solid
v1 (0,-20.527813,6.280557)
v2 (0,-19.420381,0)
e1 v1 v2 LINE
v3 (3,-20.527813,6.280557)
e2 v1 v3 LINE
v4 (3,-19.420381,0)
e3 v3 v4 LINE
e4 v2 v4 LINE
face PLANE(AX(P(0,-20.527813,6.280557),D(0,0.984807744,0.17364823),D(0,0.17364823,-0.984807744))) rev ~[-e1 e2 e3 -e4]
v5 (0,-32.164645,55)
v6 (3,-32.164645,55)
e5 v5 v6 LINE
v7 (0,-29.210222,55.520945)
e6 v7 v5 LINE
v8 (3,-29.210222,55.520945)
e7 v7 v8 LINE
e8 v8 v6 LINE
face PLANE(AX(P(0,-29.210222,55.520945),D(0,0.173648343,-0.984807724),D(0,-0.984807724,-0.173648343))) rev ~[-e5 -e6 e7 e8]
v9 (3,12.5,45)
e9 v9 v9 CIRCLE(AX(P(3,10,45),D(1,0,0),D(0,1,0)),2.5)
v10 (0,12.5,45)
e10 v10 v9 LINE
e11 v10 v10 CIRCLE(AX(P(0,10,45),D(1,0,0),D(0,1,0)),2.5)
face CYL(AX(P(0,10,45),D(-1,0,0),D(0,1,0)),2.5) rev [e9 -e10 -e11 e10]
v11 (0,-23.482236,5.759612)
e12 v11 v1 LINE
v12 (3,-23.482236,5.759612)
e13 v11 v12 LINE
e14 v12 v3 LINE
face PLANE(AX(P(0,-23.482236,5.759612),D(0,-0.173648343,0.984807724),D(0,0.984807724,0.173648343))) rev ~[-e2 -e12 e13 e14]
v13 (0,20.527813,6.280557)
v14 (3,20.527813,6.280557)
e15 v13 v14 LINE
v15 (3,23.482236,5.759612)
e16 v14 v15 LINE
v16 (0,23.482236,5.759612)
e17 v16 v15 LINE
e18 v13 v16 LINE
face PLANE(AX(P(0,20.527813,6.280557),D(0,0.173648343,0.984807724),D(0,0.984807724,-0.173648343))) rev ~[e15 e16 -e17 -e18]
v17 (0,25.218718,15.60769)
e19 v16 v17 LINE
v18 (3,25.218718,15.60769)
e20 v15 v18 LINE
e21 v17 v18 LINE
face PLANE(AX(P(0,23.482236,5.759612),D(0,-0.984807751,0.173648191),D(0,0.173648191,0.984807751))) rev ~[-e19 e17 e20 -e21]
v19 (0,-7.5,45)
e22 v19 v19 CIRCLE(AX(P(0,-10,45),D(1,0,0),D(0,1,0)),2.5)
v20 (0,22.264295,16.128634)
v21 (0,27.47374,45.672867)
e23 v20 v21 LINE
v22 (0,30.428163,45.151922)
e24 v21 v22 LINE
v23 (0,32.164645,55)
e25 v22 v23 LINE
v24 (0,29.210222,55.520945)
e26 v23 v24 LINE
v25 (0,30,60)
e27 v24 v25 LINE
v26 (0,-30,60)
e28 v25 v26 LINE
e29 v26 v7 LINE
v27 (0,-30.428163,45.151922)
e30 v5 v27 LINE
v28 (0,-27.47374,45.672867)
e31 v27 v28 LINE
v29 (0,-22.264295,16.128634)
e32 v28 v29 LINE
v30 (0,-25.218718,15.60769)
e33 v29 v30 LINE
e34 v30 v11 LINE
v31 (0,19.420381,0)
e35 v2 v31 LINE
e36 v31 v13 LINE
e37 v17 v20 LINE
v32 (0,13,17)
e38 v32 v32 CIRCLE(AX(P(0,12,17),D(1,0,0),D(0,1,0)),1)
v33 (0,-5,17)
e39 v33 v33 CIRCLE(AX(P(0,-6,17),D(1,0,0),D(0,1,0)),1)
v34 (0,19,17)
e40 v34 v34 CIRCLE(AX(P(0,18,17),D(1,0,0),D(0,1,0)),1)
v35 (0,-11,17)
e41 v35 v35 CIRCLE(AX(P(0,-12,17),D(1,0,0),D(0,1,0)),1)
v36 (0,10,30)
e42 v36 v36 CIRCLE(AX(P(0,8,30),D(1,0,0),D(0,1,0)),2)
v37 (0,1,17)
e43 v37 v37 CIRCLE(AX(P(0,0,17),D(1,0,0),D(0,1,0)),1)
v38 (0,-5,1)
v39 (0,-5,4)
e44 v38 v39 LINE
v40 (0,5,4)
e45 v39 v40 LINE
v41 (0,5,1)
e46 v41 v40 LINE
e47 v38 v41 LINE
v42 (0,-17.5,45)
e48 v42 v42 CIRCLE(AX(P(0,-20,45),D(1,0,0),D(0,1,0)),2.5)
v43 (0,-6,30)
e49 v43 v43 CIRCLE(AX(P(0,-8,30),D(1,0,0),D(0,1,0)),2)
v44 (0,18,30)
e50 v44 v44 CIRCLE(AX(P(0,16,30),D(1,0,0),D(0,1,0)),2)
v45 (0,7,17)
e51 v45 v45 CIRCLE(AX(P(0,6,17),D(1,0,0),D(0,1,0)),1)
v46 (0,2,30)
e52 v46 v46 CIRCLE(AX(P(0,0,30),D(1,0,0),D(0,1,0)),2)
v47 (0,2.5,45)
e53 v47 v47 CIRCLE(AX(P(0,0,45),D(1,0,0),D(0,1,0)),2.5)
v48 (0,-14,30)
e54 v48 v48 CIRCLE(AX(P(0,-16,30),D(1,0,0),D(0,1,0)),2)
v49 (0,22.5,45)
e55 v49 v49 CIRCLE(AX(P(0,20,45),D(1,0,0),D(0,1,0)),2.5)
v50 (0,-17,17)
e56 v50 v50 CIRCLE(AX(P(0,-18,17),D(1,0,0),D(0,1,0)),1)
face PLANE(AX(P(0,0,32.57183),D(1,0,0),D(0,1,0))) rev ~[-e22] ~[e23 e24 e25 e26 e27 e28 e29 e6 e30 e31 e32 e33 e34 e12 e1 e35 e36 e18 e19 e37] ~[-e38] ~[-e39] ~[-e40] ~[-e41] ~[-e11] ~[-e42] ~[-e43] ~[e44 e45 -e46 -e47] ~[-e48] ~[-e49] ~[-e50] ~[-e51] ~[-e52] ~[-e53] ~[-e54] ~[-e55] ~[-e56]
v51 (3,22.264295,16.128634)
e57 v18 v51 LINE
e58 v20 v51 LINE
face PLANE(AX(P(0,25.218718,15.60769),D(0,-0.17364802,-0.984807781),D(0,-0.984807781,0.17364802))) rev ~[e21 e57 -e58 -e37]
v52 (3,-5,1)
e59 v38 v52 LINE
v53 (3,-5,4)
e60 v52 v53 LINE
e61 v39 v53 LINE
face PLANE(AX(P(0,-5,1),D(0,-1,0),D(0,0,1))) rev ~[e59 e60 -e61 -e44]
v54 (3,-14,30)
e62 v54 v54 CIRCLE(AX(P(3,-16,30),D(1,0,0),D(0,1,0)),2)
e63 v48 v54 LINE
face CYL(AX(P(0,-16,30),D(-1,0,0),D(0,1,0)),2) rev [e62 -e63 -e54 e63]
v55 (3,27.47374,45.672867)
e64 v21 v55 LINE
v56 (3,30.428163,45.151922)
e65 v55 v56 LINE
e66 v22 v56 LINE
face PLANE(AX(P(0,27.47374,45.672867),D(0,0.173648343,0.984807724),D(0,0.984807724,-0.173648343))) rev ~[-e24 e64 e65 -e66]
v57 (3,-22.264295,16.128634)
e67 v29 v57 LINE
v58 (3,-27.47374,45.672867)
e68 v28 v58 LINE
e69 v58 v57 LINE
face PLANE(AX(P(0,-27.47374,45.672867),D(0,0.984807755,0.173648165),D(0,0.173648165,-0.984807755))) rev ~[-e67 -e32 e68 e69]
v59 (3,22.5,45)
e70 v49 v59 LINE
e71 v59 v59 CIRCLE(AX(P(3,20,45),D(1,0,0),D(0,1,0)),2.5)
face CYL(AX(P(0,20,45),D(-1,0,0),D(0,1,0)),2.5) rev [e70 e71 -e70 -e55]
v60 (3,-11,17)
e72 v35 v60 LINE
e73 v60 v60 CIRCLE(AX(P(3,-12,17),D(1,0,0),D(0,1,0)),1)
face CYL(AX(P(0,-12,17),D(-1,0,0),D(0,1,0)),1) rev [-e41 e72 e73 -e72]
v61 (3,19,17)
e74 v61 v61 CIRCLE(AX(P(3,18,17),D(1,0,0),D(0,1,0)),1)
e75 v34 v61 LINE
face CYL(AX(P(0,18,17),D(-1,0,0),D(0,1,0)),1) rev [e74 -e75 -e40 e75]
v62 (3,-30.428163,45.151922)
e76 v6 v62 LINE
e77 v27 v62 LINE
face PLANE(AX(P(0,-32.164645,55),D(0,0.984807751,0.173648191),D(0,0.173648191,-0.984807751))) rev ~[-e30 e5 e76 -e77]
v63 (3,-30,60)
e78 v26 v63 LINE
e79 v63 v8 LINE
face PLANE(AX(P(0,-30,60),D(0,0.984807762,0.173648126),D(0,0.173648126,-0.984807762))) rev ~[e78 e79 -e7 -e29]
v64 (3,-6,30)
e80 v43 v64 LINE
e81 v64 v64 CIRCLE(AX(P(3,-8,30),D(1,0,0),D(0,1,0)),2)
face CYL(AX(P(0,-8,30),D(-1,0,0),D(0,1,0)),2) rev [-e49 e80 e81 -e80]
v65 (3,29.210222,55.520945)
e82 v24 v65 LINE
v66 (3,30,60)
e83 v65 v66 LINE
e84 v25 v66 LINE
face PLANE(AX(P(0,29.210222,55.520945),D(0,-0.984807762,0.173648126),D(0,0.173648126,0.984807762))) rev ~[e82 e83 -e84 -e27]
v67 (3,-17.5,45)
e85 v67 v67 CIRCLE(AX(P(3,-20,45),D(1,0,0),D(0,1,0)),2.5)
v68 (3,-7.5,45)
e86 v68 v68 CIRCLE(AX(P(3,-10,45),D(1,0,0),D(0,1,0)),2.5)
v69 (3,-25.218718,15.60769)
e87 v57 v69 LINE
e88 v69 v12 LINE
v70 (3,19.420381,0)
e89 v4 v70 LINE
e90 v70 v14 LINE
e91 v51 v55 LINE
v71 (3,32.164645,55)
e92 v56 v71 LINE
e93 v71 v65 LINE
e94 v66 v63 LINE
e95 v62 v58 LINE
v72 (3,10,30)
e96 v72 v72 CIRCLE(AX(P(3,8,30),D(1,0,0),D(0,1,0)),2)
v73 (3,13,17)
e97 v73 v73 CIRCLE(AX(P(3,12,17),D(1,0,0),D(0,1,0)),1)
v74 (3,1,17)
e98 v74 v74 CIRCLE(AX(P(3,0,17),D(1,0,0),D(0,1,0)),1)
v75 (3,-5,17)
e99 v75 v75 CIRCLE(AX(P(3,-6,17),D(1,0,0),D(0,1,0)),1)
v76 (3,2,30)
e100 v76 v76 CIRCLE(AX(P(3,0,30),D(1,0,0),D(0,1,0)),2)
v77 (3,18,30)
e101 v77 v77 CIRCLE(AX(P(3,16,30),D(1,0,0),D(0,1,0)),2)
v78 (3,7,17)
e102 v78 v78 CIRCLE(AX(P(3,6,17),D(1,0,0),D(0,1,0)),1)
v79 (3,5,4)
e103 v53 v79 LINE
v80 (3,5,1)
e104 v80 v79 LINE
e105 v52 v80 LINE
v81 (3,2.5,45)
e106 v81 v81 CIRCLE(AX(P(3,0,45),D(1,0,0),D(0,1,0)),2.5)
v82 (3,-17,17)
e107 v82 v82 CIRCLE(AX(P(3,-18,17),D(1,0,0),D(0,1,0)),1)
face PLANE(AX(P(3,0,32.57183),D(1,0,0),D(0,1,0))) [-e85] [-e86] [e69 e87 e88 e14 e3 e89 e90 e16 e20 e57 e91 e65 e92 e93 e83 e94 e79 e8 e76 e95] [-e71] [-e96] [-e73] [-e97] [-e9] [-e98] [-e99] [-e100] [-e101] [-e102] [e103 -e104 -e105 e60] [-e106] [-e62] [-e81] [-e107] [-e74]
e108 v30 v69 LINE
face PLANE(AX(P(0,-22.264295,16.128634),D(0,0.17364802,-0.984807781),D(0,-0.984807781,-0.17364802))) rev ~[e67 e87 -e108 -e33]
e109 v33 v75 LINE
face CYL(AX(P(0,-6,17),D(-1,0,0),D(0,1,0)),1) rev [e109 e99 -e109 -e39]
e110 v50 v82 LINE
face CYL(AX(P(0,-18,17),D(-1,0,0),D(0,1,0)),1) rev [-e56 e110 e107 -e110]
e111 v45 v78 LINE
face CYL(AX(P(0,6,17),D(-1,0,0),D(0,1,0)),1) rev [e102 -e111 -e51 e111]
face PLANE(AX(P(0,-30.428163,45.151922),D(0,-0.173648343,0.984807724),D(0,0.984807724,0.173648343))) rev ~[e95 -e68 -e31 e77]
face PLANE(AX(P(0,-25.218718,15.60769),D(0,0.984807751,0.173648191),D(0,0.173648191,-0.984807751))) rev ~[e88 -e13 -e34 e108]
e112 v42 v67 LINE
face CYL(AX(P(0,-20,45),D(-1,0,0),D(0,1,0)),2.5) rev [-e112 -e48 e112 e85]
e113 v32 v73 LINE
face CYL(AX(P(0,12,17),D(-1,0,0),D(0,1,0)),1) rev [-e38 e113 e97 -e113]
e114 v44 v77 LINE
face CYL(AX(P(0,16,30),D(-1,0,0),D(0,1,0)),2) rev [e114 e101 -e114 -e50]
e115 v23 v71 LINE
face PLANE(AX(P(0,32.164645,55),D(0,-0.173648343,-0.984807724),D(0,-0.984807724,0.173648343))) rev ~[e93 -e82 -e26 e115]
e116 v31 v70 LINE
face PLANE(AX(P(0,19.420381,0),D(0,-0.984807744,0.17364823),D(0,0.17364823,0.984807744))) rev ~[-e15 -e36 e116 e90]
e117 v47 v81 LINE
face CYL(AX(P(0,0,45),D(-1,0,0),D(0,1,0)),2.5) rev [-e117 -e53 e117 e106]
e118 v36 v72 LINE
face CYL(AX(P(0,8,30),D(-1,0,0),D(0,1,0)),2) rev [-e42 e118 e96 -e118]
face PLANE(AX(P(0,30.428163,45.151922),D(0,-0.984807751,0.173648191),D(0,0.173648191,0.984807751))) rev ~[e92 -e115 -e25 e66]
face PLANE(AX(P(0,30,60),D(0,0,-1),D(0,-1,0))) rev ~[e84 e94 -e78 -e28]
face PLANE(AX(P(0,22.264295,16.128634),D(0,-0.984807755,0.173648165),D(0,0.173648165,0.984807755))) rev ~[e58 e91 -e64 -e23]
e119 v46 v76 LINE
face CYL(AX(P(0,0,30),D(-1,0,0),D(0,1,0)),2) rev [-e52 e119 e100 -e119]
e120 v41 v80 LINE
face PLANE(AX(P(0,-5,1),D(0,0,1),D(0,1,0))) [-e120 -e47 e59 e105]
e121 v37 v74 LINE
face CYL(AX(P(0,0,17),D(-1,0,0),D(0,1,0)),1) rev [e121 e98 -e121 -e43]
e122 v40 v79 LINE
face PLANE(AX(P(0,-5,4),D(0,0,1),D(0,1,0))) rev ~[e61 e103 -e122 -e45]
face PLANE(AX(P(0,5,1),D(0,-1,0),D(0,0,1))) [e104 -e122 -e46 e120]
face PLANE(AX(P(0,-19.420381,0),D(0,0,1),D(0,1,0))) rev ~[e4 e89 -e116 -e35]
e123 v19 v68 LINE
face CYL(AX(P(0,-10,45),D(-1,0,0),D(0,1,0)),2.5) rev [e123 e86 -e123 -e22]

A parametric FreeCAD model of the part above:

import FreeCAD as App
import Part
import Sketcher
from FreeCAD import Vector
Q = App.Units.Quantity


def add_polygon(sketch, points):
    """Adds a closed chain of lines whose ends are joined by coincident constraints."""
    first, n = sketch.GeometryCount, len(points)
    for a, b in zip(points, points[1:] + points[:1]):
        sketch.addGeometry(Part.LineSegment(App.Vector(*a, 0), App.Vector(*b, 0)), False)
    for i in range(n):
        sketch.addConstraint(Sketcher.Constraint("Coincident", first + i, 2, first + (i + 1) % n, 1))

doc = App.newDocument("Part")
body = doc.addObject("PartDesign::Body", "Body")

sketch1 = doc.addObject("Sketcher::SketchObject", "Sketch")
body.addObject(sketch1)
sketch1.AttachmentSupport = (doc.YZ_Plane, [""])
sketch1.MapMode = "FlatFace"
add_polygon(sketch1, [(-20.527813, 6.280557), (-19.420381, 0), (19.420381, 0), (20.527813, 6.280557), (23.482236, 5.759612), (25.218718, 15.60769), (22.264295, 16.128634), (27.47374, 45.672867), (30.428163, 45.151922), (32.164645, 55), (29.210222, 55.520945), (30, 60), (-30, 60), (-29.210222, 55.520945), (-32.164645, 55), (-30.428163, 45.151922), (-27.47374, 45.672867), (-22.264295, 16.128634), (-25.218718, 15.60769), (-23.482236, 5.759612)])
sketch1.addGeometry(Part.Circle(Vector(-18, 17, 0), Vector(0, 0, 1), 1), False)
sketch1.addGeometry(Part.Circle(Vector(-12, 17, 0), Vector(0, 0, 1), 1), False)
sketch1.addGeometry(Part.Circle(Vector(-6, 17, 0), Vector(0, 0, 1), 1), False)
add_polygon(sketch1, [(5, 1), (-5, 1), (-5, 4), (5, 4)])
sketch1.addGeometry(Part.Circle(Vector(0, 17, 0), Vector(0, 0, 1), 1), False)
sketch1.addGeometry(Part.Circle(Vector(6, 17, 0), Vector(0, 0, 1), 1), False)
sketch1.addGeometry(Part.Circle(Vector(12, 17, 0), Vector(0, 0, 1), 1), False)
sketch1.addGeometry(Part.Circle(Vector(18, 17, 0), Vector(0, 0, 1), 1), False)
sketch1.addGeometry(Part.Circle(Vector(-16, 30, 0), Vector(0, 0, 1), 2), False)
sketch1.addGeometry(Part.Circle(Vector(-8, 30, 0), Vector(0, 0, 1), 2), False)
sketch1.addGeometry(Part.Circle(Vector(-20, 45, 0), Vector(0, 0, 1), 2.5), False)
sketch1.addGeometry(Part.Circle(Vector(-10, 45, 0), Vector(0, 0, 1), 2.5), False)
sketch1.addGeometry(Part.Circle(Vector(0, 30, 0), Vector(0, 0, 1), 2), False)
sketch1.addGeometry(Part.Circle(Vector(8, 30, 0), Vector(0, 0, 1), 2), False)
sketch1.addGeometry(Part.Circle(Vector(16, 30, 0), Vector(0, 0, 1), 2), False)
sketch1.addGeometry(Part.Circle(Vector(0, 45, 0), Vector(0, 0, 1), 2.5), False)
sketch1.addGeometry(Part.Circle(Vector(10, 45, 0), Vector(0, 0, 1), 2.5), False)
sketch1.addGeometry(Part.Circle(Vector(20, 45, 0), Vector(0, 0, 1), 2.5), False)
sketch1.addConstraint([
    Sketcher.Constraint("Horizontal", 1),
    Sketcher.Constraint("Horizontal", 11),
    Sketcher.Constraint("Horizontal", 23),
    Sketcher.Constraint("Vertical", 24),
    Sketcher.Constraint("Horizontal", 25),
    Sketcher.Constraint("Vertical", 26),
    Sketcher.Constraint("Equal", 20, 21),
    Sketcher.Constraint("Equal", 21, 22),
    Sketcher.Constraint("Equal", 22, 27),
    Sketcher.Constraint("Equal", 27, 28),
    Sketcher.Constraint("Equal", 28, 29),
    Sketcher.Constraint("Equal", 29, 30),
    Sketcher.Constraint("Equal", 31, 32),
    Sketcher.Constraint("Equal", 33, 34),
    Sketcher.Constraint("Equal", 32, 35),
    Sketcher.Constraint("Equal", 35, 36),
    Sketcher.Constraint("Equal", 36, 37),
    Sketcher.Constraint("Equal", 34, 38),
    Sketcher.Constraint("Equal", 38, 39),
    Sketcher.Constraint("Equal", 39, 40),
    Sketcher.Constraint("Symmetric", 0, 2, 1, 2, -1, 1),
    Sketcher.Constraint("Symmetric", 22, 3, 28, 3, -2),
    Sketcher.Constraint("Symmetric", 21, 3, 29, 3, -2),
    Sketcher.Constraint("Symmetric", 20, 3, 30, 3, -2),
    Sketcher.Constraint("Symmetric", 32, 3, 36, 3, -2),
    Sketcher.Constraint("Symmetric", 31, 3, 37, 3, -2),
    Sketcher.Constraint("Symmetric", 34, 3, 39, 3, -2),
    Sketcher.Constraint("Symmetric", 33, 3, 40, 3, -2),
    Sketcher.Constraint("Symmetric", 9, 2, 12, 2, -2),
    Sketcher.Constraint("Symmetric", 8, 2, 13, 2, -2),
    Sketcher.Constraint("Symmetric", 7, 2, 14, 2, -2),
    Sketcher.Constraint("Symmetric", 6, 2, 15, 2, -2),
    Sketcher.Constraint("Symmetric", 5, 2, 16, 2, -2),
    Sketcher.Constraint("Symmetric", 4, 2, 17, 2, -2),
    Sketcher.Constraint("Symmetric", 3, 2, 18, 2, -2),
    Sketcher.Constraint("Symmetric", 2, 2, 19, 2, -2),
    Sketcher.Constraint("PointOnObject", 27, 3, -2),
    Sketcher.Constraint("PointOnObject", 35, 3, -2),
    Sketcher.Constraint("PointOnObject", 38, 3, -2),
    Sketcher.Constraint("Perpendicular", 2, 3),
    Sketcher.Constraint("Perpendicular", 3, 4),
    Sketcher.Constraint("Perpendicular", 4, 5),
    Sketcher.Constraint("Perpendicular", 5, 6),
    Sketcher.Constraint("Perpendicular", 6, 7),
    Sketcher.Constraint("Perpendicular", 7, 8),
    Sketcher.Constraint("Perpendicular", 8, 9),
    Sketcher.Constraint("Perpendicular", 9, 10),
    Sketcher.Constraint("Parallel", 0, 12),
    Sketcher.Constraint("Horizontal", 20, 3, 21, 3),
    Sketcher.Constraint("Horizontal", 21, 3, 22, 3),
    Sketcher.Constraint("Horizontal", 22, 3, 27, 3),
    Sketcher.Constraint("Horizontal", 31, 3, 32, 3),
    Sketcher.Constraint("Horizontal", 33, 3, 34, 3),
    Sketcher.Constraint("Horizontal", 32, 3, 35, 3),
    Sketcher.Constraint("Horizontal", 34, 3, 38, 3),
    Sketcher.Constraint("Equal", 3, 5),
    Sketcher.Constraint("Equal", 5, 7),
    Sketcher.Constraint("Equal", 4, 8),
    Sketcher.Constraint("Equal", 7, 9),
    Sketcher.Constraint("Diameter", 20, 2.0),
    Sketcher.Constraint("Diameter", 31, 4.0),
    Sketcher.Constraint("Diameter", 33, 5.0),
    Sketcher.Constraint("DistanceX", 11, 2, 11, 1, 60.0),
    Sketcher.Constraint("DistanceX", 23, 2, 23, 1, 10.0),
    Sketcher.Constraint("DistanceY", 24, 1, 24, 2, 3.0),
    Sketcher.Constraint("Angle", 0, Q("-79.999997 deg")),
    Sketcher.Constraint("Distance", 3, 3.0),
    Sketcher.Constraint("Distance", 4, 10.000001),
    Sketcher.Constraint("Distance", 6, 30.0),
    Sketcher.Constraint("DistanceX", 20, 3, -1, 1, 18.0),
    Sketcher.Constraint("DistanceY", -1, 1, 20, 3, 17.0),
    Sketcher.Constraint("DistanceX", 21, 3, -1, 1, 12.0),
    Sketcher.Constraint("DistanceX", 22, 3, -1, 1, 6.0),
    Sketcher.Constraint("DistanceX", 31, 3, -1, 1, 16.0),
    Sketcher.Constraint("DistanceY", -1, 1, 31, 3, 30.0),
    Sketcher.Constraint("DistanceX", 32, 3, -1, 1, 8.0),
    Sketcher.Constraint("DistanceX", 33, 3, -1, 1, 20.0),
    Sketcher.Constraint("DistanceY", -1, 1, 33, 3, 45.0),
    Sketcher.Constraint("DistanceX", 34, 3, -1, 1, 10.0),
    Sketcher.Constraint("DistanceY", -1, 1, 8, 2, 55.0),
    Sketcher.Constraint("DistanceY", -1, 1, 10, 2, 60.0),
    Sketcher.Constraint("DistanceX", 23, 2, -1, 1, 5.0),
    Sketcher.Constraint("DistanceY", -1, 1, 23, 2, 1.0),
])
pad1 = doc.addObject("PartDesign::Pad", "Pad")
body.addObject(pad1)
pad1.Profile = sketch1
pad1.Length = 3

doc.recompute()
